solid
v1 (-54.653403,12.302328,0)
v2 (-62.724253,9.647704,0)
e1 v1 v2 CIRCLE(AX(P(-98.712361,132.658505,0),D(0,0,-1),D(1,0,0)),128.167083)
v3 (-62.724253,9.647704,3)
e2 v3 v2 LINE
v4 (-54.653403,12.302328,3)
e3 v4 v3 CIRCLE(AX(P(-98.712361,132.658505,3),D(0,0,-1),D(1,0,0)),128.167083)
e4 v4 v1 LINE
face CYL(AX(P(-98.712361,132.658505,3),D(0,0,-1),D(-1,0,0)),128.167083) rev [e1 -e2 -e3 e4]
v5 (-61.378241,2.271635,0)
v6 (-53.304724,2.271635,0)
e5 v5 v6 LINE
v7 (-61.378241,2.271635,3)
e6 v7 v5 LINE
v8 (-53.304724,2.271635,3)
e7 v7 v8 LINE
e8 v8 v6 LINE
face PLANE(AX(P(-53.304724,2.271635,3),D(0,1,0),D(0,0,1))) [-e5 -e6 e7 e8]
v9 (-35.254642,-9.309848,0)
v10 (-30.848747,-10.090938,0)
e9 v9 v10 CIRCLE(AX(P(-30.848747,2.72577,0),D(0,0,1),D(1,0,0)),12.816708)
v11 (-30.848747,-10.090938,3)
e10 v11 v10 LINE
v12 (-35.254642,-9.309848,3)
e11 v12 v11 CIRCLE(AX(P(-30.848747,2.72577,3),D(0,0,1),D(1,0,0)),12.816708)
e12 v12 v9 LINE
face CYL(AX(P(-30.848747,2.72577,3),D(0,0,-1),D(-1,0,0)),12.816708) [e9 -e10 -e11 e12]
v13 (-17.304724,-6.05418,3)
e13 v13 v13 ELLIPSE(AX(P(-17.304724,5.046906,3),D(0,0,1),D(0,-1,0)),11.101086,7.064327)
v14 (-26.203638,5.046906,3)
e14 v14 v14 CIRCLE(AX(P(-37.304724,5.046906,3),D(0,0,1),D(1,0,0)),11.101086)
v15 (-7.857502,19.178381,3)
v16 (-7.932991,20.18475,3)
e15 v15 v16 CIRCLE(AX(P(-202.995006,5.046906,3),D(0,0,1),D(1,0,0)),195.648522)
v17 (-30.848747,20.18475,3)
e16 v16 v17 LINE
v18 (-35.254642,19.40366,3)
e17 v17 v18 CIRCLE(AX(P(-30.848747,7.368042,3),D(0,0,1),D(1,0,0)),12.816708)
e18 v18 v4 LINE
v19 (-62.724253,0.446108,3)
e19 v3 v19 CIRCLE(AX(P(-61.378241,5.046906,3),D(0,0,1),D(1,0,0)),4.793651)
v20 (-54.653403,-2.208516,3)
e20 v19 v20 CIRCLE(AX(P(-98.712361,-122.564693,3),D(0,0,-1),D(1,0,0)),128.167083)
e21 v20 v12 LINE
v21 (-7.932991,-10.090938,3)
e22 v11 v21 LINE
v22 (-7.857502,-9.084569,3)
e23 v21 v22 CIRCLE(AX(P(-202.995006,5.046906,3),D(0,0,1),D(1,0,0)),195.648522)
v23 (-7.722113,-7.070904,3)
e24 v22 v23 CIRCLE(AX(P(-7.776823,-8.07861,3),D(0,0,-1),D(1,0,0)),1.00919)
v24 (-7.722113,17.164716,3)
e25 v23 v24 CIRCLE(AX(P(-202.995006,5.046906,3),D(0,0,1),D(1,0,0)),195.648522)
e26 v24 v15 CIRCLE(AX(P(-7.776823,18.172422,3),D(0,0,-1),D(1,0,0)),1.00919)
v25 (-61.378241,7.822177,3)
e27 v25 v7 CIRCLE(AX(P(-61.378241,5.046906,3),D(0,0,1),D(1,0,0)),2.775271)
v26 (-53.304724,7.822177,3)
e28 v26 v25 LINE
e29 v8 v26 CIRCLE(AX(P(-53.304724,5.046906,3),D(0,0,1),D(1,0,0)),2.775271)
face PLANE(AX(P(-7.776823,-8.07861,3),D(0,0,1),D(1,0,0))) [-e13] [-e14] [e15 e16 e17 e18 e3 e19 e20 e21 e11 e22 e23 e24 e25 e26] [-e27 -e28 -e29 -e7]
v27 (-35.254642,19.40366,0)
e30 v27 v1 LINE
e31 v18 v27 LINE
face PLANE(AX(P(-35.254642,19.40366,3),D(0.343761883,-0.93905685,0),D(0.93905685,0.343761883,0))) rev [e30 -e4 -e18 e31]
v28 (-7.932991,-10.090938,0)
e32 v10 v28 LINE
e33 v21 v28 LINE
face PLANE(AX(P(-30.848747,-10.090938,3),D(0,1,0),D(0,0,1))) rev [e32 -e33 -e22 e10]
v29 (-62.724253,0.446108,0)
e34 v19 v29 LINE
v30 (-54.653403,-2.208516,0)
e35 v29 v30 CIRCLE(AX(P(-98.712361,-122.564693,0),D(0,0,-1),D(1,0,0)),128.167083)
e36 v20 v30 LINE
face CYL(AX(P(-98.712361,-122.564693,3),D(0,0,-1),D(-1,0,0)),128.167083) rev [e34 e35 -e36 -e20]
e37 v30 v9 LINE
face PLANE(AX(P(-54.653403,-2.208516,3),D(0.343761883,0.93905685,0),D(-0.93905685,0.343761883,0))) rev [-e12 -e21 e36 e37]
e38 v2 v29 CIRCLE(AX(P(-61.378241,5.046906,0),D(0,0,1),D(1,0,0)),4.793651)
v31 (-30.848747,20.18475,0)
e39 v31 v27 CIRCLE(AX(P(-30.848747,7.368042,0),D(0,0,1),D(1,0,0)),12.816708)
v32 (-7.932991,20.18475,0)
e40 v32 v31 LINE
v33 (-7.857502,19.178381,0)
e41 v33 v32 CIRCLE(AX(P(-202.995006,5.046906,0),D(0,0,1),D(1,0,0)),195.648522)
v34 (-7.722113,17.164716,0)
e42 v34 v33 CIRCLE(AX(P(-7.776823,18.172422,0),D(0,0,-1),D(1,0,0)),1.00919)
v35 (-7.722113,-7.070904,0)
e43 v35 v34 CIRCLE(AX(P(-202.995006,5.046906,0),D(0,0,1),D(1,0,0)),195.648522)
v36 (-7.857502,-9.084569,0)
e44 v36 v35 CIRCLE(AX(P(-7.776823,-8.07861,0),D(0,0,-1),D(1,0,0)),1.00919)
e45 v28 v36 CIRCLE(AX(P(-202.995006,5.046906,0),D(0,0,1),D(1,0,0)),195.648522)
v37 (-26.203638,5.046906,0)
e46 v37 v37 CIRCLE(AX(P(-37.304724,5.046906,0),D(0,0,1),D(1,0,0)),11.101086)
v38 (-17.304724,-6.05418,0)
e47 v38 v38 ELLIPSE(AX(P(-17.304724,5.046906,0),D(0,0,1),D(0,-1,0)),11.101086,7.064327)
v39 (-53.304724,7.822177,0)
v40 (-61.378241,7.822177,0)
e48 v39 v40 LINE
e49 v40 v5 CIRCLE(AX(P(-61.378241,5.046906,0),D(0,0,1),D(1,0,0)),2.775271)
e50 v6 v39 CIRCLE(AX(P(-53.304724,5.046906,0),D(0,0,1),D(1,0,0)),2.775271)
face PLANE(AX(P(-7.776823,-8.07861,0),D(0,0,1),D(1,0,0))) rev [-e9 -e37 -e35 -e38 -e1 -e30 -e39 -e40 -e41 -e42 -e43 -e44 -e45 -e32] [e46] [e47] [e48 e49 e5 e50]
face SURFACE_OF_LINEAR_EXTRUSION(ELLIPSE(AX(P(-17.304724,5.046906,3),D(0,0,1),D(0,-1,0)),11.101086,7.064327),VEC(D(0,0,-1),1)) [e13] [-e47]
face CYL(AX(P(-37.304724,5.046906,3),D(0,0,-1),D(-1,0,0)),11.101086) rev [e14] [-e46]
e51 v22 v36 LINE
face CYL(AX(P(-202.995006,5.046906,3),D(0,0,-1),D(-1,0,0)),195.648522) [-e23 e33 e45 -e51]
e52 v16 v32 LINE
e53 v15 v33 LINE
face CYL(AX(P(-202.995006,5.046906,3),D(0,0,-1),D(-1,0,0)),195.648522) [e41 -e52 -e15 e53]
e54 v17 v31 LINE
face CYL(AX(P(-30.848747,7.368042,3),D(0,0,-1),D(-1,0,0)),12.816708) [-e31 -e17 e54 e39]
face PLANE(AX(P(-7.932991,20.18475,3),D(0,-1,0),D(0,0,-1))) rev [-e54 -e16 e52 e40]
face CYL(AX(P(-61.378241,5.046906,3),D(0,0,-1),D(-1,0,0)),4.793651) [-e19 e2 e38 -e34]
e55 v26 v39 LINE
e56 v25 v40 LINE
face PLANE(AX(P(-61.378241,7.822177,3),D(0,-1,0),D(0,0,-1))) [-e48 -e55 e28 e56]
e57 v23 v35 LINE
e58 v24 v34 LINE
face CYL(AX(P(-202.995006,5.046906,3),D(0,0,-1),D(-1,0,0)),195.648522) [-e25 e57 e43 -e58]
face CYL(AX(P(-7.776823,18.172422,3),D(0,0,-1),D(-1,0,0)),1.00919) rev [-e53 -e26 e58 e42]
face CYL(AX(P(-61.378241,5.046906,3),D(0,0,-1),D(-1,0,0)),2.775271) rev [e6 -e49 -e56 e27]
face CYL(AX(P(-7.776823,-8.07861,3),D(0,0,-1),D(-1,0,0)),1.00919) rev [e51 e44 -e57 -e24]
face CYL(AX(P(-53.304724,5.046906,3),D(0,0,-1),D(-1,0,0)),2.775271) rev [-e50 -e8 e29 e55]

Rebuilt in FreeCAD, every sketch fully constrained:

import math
import FreeCAD as App
import Part
import Sketcher

V = App.Vector
Q = App.Units.Quantity

doc = App.newDocument("Part")
body = doc.addObject("PartDesign::Body", "Body")

sketch1 = body.newObject("Sketcher::SketchObject", "Sketch")
sketch1.AttachmentSupport = (doc.getObject("XY_Plane"), [""])
sketch1.MapMode = "FlatFace"
sketch1.addGeometry([
    Part.LineSegment(V(-7.932991, 20.18475, 0), V(-30.848747, 20.18475, 0)),
    Part.ArcOfCircle(Part.Circle(V(-30.848747, 7.368042, 0), V(0, 0, 1), 12.816708), math.radians(90), math.radians(110.106235)),
    Part.LineSegment(V(-35.254642, 19.40366, 0), V(-54.653403, 12.302328, 0)),
    Part.ArcOfCircle(Part.Circle(V(-98.712361, 132.658505, 0), V(0, 0, 1), 128.167083), math.radians(-73.692606), math.radians(-69.893765)),
    Part.ArcOfCircle(Part.Circle(V(-61.378241, 5.046906, 0), V(0, 0, 1), 4.793651), math.radians(106.307394), math.radians(253.692606)),
    Part.ArcOfCircle(Part.Circle(V(-98.71236, -122.564692, 0), V(0, 0, 1), 128.167082), math.radians(69.893765), math.radians(73.692606)),
    Part.LineSegment(V(-54.653403, -2.208516, 0), V(-35.254642, -9.309848, 0)),
    Part.ArcOfCircle(Part.Circle(V(-30.848747, 2.72577, 0), V(0, 0, 1), 12.816708), math.radians(-110.106235), math.radians(-90)),
    Part.LineSegment(V(-30.848747, -10.090938, 0), V(-7.932991, -10.090938, 0)),
    Part.ArcOfCircle(Part.Circle(V(-202.995185, 5.046919, 0), V(0, 0, 1), 195.648702), math.radians(-4.437561), math.radians(-4.142017)),
    Part.ArcOfCircle(Part.Circle(V(-7.776823, -8.07861, 0), V(0, 0, 1), 1.00919), math.radians(168.690068), math.radians(265.414666)),
    Part.ArcOfCircle(Part.Circle(V(-7.776823, -8.07861, 0), V(0, 0, 1), 1.00919), math.radians(86.892337), math.radians(168.690068)),
    Part.ArcOfCircle(Part.Circle(V(-202.995007, 5.046906, 0), V(0, 0, 1), 195.648523), math.radians(-3.55098), math.radians(3.55098)),
    Part.ArcOfCircle(Part.Circle(V(-7.776823, 18.172422, 0), V(0, 0, 1), 1.00919), math.radians(168.690068), math.radians(273.107663)),
    Part.ArcOfCircle(Part.Circle(V(-7.776823, 18.172422, 0), V(0, 0, 1), 1.00919), math.radians(94.585334), math.radians(168.690067)),
    Part.ArcOfCircle(Part.Circle(V(-202.995163, 5.046894, 0), V(0, 0, 1), 195.648679), math.radians(4.142017), math.radians(4.437561)),
    Part.ArcOfCircle(Part.Circle(V(-53.304724, 5.046906, 0), V(0, 0, 1), 2.775271), math.radians(-90), math.radians(90)),
    Part.LineSegment(V(-53.304724, 2.271635, 0), V(-61.378241, 2.271635, 0)),
    Part.ArcOfCircle(Part.Circle(V(-61.378241, 5.046906, 0), V(0, 0, 1), 2.775271), math.radians(90), math.radians(270)),
    Part.LineSegment(V(-61.378241, 7.822177, 0), V(-53.304724, 7.822177, 0)),
    Part.Circle(V(-37.304724, 5.046906, 0), V(0, 0, 1), 11.101086),
    Part.Ellipse(V(-17.304724, -6.05418, 0), V(-10.240397, 5.046906, 0), V(-17.304724, 5.046906, 0)),
], False)
sketch1.addConstraint([
    Sketcher.Constraint("Block", 21),
    Sketcher.Constraint("Tangent", 0, 2, 1, 1),
    Sketcher.Constraint("Tangent", 1, 2, 2, 1),
    Sketcher.Constraint("Tangent", 2, 2, 3, 2),
    Sketcher.Constraint("Tangent", 3, 1, 4, 1),
    Sketcher.Constraint("Tangent", 4, 2, 5, 2),
    Sketcher.Constraint("Tangent", 5, 1, 6, 1),
    Sketcher.Constraint("Tangent", 6, 2, 7, 1),
    Sketcher.Constraint("Tangent", 7, 2, 8, 1),
    Sketcher.Constraint("Coincident", 8, 2, 9, 1),
    Sketcher.Constraint("Coincident", 9, 2, 10, 2),
    Sketcher.Constraint("Tangent", 10, 1, 11, 2),
    Sketcher.Constraint("Coincident", 11, 1, 12, 1),
    Sketcher.Constraint("Coincident", 12, 2, 13, 2),
    Sketcher.Constraint("Tangent", 13, 1, 14, 2),
    Sketcher.Constraint("Coincident", 14, 1, 15, 1),
    Sketcher.Constraint("Coincident", 15, 2, 0, 1),
    Sketcher.Constraint("Tangent", 16, 1, 17, 1),
    Sketcher.Constraint("Tangent", 17, 2, 18, 2),
    Sketcher.Constraint("Tangent", 18, 1, 19, 1),
    Sketcher.Constraint("Tangent", 19, 2, 16, 2),
    Sketcher.Constraint("Horizontal", 0),
    Sketcher.Constraint("Horizontal", 8),
    Sketcher.Constraint("Horizontal", 17),
    Sketcher.Constraint("Horizontal", 19),
    Sketcher.Constraint("Coincident", 18, 3, 4, 3),
    Sketcher.Constraint("Equal", 3, 5),
    Sketcher.Constraint("Equal", 1, 7),
    Sketcher.Constraint("Equal", 10, 11),
    Sketcher.Constraint("Equal", 11, 13),
    Sketcher.Constraint("Equal", 13, 14),
    Sketcher.Constraint("Horizontal", 4, 3, 12, 3),
    Sketcher.Constraint("Horizontal", 18, 3, 20, 3),
    Sketcher.Constraint("Vertical", 3, 3, 5, 3),
    Sketcher.Constraint("Vertical", 1, 3, 7, 3),
    Sketcher.Constraint("Vertical", 11, 3, 13, 3),
    Sketcher.Constraint("Vertical", 2, 2, 5, 1),
    Sketcher.Constraint("Vertical", 11, 1, 12, 2),
    Sketcher.Constraint("Vertical", 10, 1, 13, 1),
    Sketcher.Constraint("Vertical", 9, 2, 14, 1),
    Sketcher.Constraint("Equal", 0, 8),
    Sketcher.Constraint("DistanceX", 16, 3, 20, 3, Q("16 mm")),
    Sketcher.Constraint("Radius", 9, Q("195.648702 mm")),
    Sketcher.Constraint("Diameter", 20, Q("22.202172 mm")),
    Sketcher.Constraint("Radius", 1, Q("12.816708 mm")),
    Sketcher.Constraint("Radius", 4, Q("4.793651 mm")),
    Sketcher.Constraint("Radius", 10, Q("1.00919 mm")),
    Sketcher.Constraint("Radius", 15, Q("195.648679 mm")),
    Sketcher.Constraint("Radius", 16, Q("2.775271 mm")),
    Sketcher.Constraint("Radius", 3, Q("128.167083 mm")),
    Sketcher.Constraint("Radius", 12, Q("195.648523 mm")),
    Sketcher.Constraint("DistanceX", 9, 2, -1, 1, Q("7.857502 mm")),
    Sketcher.Constraint("DistanceY", 4, 3, 3, 3, Q("127.611599 mm")),
    Sketcher.Constraint("DistanceX", 16, 3, 11, 3, Q("45.527901 mm")),
    Sketcher.Constraint("DistanceX", 0, 2, 0, 1, Q("22.915756 mm")),
    Sketcher.Constraint("DistanceX", 17, 2, 17, 1, Q("8.073517 mm")),
    Sketcher.Constraint("DistanceX", 3, 3, -1, 1, Q("98.712361 mm")),
    Sketcher.Constraint("DistanceY", -1, 1, 7, 3, Q("2.72577 mm")),
    Sketcher.Constraint("DistanceY", -1, 1, 9, 3, Q("5.046919 mm")),
    Sketcher.Constraint("DistanceY", 10, 3, -1, 1, Q("8.07861 mm")),
    Sketcher.Constraint("DistanceY", -1, 1, 13, 3, Q("18.172422 mm")),
    Sketcher.Constraint("DistanceY", 10, 1, -1, 1, Q("7.880691 mm")),
    Sketcher.Constraint("DistanceX", 9, 3, 12, 3, Q("0.000179 mm")),
])
pad1 = body.newObject("PartDesign::Pad", "Pad")
pad1.Profile = sketch1
pad1.Length = 3

doc.recompute()
